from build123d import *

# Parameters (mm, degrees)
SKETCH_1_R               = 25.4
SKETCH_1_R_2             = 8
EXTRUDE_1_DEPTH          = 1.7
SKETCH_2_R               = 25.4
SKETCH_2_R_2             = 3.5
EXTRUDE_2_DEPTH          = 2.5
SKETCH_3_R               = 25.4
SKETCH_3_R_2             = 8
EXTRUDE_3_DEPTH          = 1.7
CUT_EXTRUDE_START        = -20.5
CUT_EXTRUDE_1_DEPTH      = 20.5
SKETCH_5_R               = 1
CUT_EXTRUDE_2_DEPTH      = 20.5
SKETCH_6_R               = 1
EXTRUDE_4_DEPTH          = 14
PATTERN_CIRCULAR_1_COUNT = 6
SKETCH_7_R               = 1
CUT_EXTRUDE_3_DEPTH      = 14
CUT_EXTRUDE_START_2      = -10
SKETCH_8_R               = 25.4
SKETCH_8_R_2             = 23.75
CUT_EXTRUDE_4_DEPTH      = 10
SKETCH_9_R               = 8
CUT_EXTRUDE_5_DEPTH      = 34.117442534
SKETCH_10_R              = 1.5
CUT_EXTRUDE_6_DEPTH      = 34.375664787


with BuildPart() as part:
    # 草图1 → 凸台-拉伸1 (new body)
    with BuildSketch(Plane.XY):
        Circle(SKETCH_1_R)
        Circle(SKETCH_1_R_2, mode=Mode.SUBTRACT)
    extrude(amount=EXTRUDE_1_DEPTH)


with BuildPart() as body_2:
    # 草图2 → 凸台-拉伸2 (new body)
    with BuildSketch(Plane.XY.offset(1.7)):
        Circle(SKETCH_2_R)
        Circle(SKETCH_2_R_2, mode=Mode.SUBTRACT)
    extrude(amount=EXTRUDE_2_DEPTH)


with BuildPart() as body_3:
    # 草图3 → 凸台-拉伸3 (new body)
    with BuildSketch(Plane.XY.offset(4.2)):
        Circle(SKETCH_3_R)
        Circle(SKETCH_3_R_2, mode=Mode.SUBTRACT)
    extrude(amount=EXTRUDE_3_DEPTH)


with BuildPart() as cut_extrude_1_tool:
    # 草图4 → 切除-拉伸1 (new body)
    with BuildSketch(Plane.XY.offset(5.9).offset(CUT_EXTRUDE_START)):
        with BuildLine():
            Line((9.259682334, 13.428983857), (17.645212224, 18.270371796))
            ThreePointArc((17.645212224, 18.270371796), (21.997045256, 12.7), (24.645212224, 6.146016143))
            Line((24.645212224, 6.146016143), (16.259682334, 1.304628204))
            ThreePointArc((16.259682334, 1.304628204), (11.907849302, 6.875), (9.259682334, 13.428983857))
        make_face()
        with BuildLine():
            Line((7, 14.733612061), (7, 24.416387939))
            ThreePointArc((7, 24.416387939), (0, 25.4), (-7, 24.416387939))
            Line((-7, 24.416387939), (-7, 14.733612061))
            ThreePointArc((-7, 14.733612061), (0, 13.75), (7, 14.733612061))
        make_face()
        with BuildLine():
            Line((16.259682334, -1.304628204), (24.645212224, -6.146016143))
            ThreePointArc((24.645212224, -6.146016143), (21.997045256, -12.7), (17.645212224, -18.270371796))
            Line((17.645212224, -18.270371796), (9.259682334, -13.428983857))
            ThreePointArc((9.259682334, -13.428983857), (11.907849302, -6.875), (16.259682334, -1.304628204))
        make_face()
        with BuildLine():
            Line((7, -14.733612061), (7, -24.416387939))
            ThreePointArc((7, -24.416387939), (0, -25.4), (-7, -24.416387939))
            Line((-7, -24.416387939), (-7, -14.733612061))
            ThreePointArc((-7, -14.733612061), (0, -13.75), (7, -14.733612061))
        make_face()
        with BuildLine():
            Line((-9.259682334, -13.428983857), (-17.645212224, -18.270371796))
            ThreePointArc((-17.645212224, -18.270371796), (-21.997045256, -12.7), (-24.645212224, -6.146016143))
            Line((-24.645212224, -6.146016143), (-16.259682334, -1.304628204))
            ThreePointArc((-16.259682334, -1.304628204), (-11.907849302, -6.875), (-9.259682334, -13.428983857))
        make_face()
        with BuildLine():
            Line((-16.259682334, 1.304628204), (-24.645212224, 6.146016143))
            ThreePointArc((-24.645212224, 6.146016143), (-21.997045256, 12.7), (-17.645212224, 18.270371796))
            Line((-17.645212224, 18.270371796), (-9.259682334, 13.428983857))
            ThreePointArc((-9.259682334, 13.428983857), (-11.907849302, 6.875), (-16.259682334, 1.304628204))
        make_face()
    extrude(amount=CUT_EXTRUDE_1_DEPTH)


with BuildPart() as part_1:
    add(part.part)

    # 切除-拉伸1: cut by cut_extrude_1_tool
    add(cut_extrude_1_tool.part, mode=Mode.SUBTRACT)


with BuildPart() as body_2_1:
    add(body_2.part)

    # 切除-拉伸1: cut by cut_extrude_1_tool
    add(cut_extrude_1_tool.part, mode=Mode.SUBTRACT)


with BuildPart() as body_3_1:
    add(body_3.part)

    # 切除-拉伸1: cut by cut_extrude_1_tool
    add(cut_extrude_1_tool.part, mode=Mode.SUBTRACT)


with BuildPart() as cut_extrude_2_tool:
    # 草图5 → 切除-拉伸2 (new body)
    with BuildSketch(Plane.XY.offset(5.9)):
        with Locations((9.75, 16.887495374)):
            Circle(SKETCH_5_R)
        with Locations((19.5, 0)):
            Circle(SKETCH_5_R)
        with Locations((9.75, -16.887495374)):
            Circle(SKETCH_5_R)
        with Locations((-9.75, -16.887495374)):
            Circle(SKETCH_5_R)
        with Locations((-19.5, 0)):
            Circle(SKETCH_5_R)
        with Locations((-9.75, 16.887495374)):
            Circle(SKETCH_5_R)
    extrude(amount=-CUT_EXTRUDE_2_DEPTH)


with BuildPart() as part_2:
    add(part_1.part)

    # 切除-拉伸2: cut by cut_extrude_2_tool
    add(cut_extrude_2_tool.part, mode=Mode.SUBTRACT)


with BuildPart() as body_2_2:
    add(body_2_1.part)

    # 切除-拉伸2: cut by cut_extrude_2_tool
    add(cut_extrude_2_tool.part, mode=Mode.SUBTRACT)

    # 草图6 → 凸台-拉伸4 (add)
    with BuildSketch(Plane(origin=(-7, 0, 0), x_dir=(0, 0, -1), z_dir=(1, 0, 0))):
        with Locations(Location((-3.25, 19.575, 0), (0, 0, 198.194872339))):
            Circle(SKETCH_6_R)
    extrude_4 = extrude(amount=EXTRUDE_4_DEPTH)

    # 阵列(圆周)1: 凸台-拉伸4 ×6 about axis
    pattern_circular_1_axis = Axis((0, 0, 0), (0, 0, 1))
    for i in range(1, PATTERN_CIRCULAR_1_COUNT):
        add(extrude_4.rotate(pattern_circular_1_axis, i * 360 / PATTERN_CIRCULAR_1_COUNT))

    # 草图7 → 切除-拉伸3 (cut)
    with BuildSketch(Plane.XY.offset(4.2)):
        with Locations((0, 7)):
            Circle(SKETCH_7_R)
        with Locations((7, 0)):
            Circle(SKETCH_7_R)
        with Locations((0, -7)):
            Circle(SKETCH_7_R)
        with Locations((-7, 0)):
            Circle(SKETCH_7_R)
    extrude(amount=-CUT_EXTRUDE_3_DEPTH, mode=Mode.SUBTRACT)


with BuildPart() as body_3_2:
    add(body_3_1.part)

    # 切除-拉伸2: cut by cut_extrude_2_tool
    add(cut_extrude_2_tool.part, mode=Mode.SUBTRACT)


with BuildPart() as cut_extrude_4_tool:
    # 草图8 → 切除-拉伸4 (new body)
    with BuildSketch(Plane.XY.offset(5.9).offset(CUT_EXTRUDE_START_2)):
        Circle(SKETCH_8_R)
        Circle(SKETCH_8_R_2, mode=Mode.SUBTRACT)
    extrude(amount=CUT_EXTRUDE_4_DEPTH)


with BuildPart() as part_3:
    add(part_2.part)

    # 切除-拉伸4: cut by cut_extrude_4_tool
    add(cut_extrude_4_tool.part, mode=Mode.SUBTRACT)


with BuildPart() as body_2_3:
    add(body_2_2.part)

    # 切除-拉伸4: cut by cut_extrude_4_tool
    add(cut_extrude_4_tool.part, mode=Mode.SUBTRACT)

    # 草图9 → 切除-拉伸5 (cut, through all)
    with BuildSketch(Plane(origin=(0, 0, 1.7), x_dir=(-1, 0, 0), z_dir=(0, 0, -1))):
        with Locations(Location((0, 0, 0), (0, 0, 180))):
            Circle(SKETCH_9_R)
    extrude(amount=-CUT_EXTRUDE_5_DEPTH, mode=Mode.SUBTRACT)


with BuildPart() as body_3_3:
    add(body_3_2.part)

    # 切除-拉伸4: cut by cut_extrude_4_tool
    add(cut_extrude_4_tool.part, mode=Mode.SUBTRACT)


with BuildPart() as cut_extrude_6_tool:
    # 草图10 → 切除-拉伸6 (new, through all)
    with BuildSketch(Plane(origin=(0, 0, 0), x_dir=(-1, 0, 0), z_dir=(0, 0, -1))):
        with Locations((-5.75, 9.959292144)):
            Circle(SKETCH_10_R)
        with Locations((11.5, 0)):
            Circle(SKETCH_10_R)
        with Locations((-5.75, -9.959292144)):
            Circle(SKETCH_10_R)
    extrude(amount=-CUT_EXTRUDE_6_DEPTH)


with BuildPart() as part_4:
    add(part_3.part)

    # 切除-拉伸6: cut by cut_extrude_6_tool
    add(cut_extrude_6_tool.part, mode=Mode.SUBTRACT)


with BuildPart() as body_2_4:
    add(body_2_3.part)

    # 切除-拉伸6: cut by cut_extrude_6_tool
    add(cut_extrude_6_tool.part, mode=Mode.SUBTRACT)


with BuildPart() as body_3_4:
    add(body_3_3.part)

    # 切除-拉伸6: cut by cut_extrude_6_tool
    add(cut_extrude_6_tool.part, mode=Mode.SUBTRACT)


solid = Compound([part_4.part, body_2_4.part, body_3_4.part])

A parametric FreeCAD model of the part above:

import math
import FreeCAD as App
import Part
import Sketcher

V = App.Vector
Q = App.Units.Quantity

doc = App.newDocument("Part")
body = doc.addObject("PartDesign::Body", "Body")

sketch1 = body.newObject("Sketcher::SketchObject", "Sketch")
sketch1.AttachmentSupport = (doc.getObject("XY_Plane"), [""])
sketch1.MapMode = "FlatFace"
sketch1.addGeometry([
    Part.Circle(V(0, 0, 0), V(0, 0, 1), 25),
    Part.Circle(V(0, 0, 0), V(0, 0, 1), 8),
], False)
sketch1.addConstraint([
    Sketcher.Constraint("Coincident", 0, 3, -1, 1),
    Sketcher.Constraint("Coincident", 1, 3, -1, 1),
    Sketcher.Constraint("Diameter", 1, 16.0),
    Sketcher.Constraint("Diameter", 0, 50.8),
])
pad1 = body.newObject("PartDesign::Pad", "Pad")
pad1.Profile = sketch1
pad1.Length = 1.7
body2 = doc.addObject("PartDesign::Body", "Body001")

sketch2 = body2.newObject("Sketcher::SketchObject", "Sketch001")
sketch2.AttachmentSupport = (doc.getObject("XY_Plane001"), [""])
sketch2.MapMode = "FlatFace"
sketch2.AttachmentOffset = App.Placement(V(0, 0, 1.7), App.Rotation())
sketch2.addGeometry([
    Part.Circle(V(0, 0, 0), V(0, 0, 1), 25.4),
    Part.Circle(V(0, 0, 0), V(0, 0, 1), 3.5),
], False)
sketch2.addConstraint([
    Sketcher.Constraint("Coincident", 0, 3, -1, 1),
    Sketcher.Constraint("Coincident", 1, 3, -1, 1),
    Sketcher.Constraint("Diameter", 1, 7.0),
    Sketcher.Constraint("Diameter", 0, 50.8),
])
pad2 = body2.newObject("PartDesign::Pad", "Pad001")
pad2.Profile = sketch2
pad2.Length = 2.5
body3 = doc.addObject("PartDesign::Body", "Body002")

sketch3 = body3.newObject("Sketcher::SketchObject", "Sketch002")
sketch3.AttachmentSupport = (doc.getObject("XY_Plane002"), [""])
sketch3.MapMode = "FlatFace"
sketch3.AttachmentOffset = App.Placement(V(0, 0, 4.2), App.Rotation())
sketch3.addGeometry([
    Part.Circle(V(0, 0, 0), V(0, 0, 1), 25),
    Part.Circle(V(0, 0, 0), V(0, 0, 1), 8),
], False)
sketch3.addConstraint([
    Sketcher.Constraint("Coincident", 0, 3, -1, 1),
    Sketcher.Constraint("Coincident", 1, 3, -1, 1),
    Sketcher.Constraint("Diameter", 1, 16.0),
    Sketcher.Constraint("Diameter", 0, 50.8),
])
pad3 = body3.newObject("PartDesign::Pad", "Pad002")
pad3.Profile = sketch3
pad3.Length = 1.7
body4 = doc.addObject("PartDesign::Body", "Body003")
body4.AllowCompound = True

sketch4 = body4.newObject("Sketcher::SketchObject", "Sketch003")
sketch4.AttachmentSupport = (doc.getObject("XY_Plane003"), [""])
sketch4.MapMode = "FlatFace"
sketch4.AttachmentOffset = App.Placement(V(0, 0, -14.6), App.Rotation())
sketch4.addGeometry([
    Part.LineSegment(V(18, 18, 0), V(9, 13, 0)),
    Part.ArcOfCircle(Part.Circle(V(34, 20, 0), V(0, 0, 1), 25), math.radians(-166), math.radians(-134)),
    Part.LineSegment(V(16, 1, 0), V(25, 6, 0)),
    Part.ArcOfCircle(Part.Circle(V(0, 0, 0), V(0, 0, 1), 25), math.radians(14), math.radians(46)),
    Part.LineSegment(V(7, 15, 0), V(7, 24, 0)),
    Part.ArcOfCircle(Part.Circle(V(0, 0, 0), V(0, 0, 1), 25), math.radians(74), math.radians(106)),
    Part.LineSegment(V(-7, 24, 0), V(-7, 15, 0)),
    Part.ArcOfCircle(Part.Circle(V(0, 39, 0), V(0, 0, 1), 25), math.radians(-106), math.radians(-74)),
    Part.LineSegment(V(25, -6, 0), V(16, -1, 0)),
    Part.ArcOfCircle(Part.Circle(V(34, -20, 0), V(0, 0, 1), 25), math.radians(134), math.radians(166)),
    Part.LineSegment(V(9, -13, 0), V(18, -18, 0)),
    Part.ArcOfCircle(Part.Circle(V(0, 0, 0), V(0, 0, 1), 25), math.radians(-46), math.radians(-14)),
    Part.LineSegment(V(7, -24, 0), V(7, -15, 0)),
    Part.ArcOfCircle(Part.Circle(V(0, -39, 0), V(0, 0, 1), 25), math.radians(74), math.radians(106)),
    Part.LineSegment(V(-7, -15, 0), V(-7, -24, 0)),
    Part.ArcOfCircle(Part.Circle(V(0, 0, 0), V(0, 0, 1), 25), math.radians(-106), math.radians(-74)),
    Part.LineSegment(V(-18, -18, 0), V(-9, -13, 0)),
    Part.ArcOfCircle(Part.Circle(V(-34, -20, 0), V(0, 0, 1), 25), math.radians(14), math.radians(46)),
    Part.LineSegment(V(-16, -1, 0), V(-25, -6, 0)),
    Part.ArcOfCircle(Part.Circle(V(0, 0, 0), V(0, 0, 1), 25), math.radians(-166), math.radians(-134)),
    Part.LineSegment(V(-25, 6, 0), V(-16, 1, 0)),
    Part.ArcOfCircle(Part.Circle(V(-34, 20, 0), V(0, 0, 1), 25), math.radians(-46), math.radians(-14)),
    Part.LineSegment(V(-9, 13, 0), V(-18, 18, 0)),
    Part.ArcOfCircle(Part.Circle(V(0, 0, 0), V(0, 0, 1), 25), math.radians(134), math.radians(166)),
], False)
sketch4.addConstraint([
    Sketcher.Constraint("Coincident", 0, 2, 1, 1),
    Sketcher.Constraint("Coincident", 1, 2, 2, 1),
    Sketcher.Constraint("Coincident", 2, 2, 3, 1),
    Sketcher.Constraint("Coincident", 3, 2, 0, 1),
    Sketcher.Constraint("Coincident", 4, 2, 5, 1),
    Sketcher.Constraint("Coincident", 5, 2, 6, 1),
    Sketcher.Constraint("Coincident", 6, 2, 7, 1),
    Sketcher.Constraint("Coincident", 7, 2, 4, 1),
    Sketcher.Constraint("Coincident", 8, 2, 9, 1),
    Sketcher.Constraint("Coincident", 9, 2, 10, 1),
    Sketcher.Constraint("Coincident", 10, 2, 11, 1),
    Sketcher.Constraint("Coincident", 11, 2, 8, 1),
    Sketcher.Constraint("Coincident", 12, 2, 13, 1),
    Sketcher.Constraint("Coincident", 13, 2, 14, 1),
    Sketcher.Constraint("Coincident", 14, 2, 15, 1),
    Sketcher.Constraint("Coincident", 15, 2, 12, 1),
    Sketcher.Constraint("Coincident", 16, 2, 17, 1),
    Sketcher.Constraint("Coincident", 17, 2, 18, 1),
    Sketcher.Constraint("Coincident", 18, 2, 19, 1),
    Sketcher.Constraint("Coincident", 19, 2, 16, 1),
    Sketcher.Constraint("Coincident", 20, 2, 21, 1),
    Sketcher.Constraint("Coincident", 21, 2, 22, 1),
    Sketcher.Constraint("Coincident", 22, 2, 23, 1),
    Sketcher.Constraint("Coincident", 23, 2, 20, 1),
    Sketcher.Constraint("Vertical", 4),
    Sketcher.Constraint("Vertical", 6),
    Sketcher.Constraint("Vertical", 12),
    Sketcher.Constraint("Vertical", 14),
    Sketcher.Constraint("Coincident", 3, 3, -1, 1),
    Sketcher.Constraint("Coincident", 5, 3, -1, 1),
    Sketcher.Constraint("Coincident", 11, 3, -1, 1),
    Sketcher.Constraint("Coincident", 15, 3, -1, 1),
    Sketcher.Constraint("Coincident", 19, 3, -1, 1),
    Sketcher.Constraint("Coincident", 23, 3, -1, 1),
    Sketcher.Constraint("Equal", 1, 3),
    Sketcher.Constraint("Equal", 3, 5),
    Sketcher.Constraint("Equal", 5, 7),
    Sketcher.Constraint("Equal", 7, 9),
    Sketcher.Constraint("Equal", 9, 11),
    Sketcher.Constraint("Equal", 11, 13),
    Sketcher.Constraint("Equal", 13, 15),
    Sketcher.Constraint("Equal", 15, 17),
    Sketcher.Constraint("Equal", 17, 19),
    Sketcher.Constraint("Equal", 19, 21),
    Sketcher.Constraint("Equal", 21, 23),
    Sketcher.Constraint("Symmetric", 7, 3, 13, 3, -1, 1),
    Sketcher.Constraint("Symmetric", 1, 3, 17, 3, -1, 1),
    Sketcher.Constraint("Symmetric", 9, 3, 21, 3, -1, 1),
    Sketcher.Constraint("Symmetric", 9, 3, 17, 3, -2),
    Sketcher.Constraint("Symmetric", 6, 2, 7, 2, -2),
    Sketcher.Constraint("Parallel", 0, 2),
    Sketcher.Constraint("Parallel", 8, 10),
    Sketcher.Constraint("Parallel", 2, 16),
    Sketcher.Constraint("Parallel", 16, 18),
    Sketcher.Constraint("Parallel", 10, 20),
    Sketcher.Constraint("Parallel", 20, 22),
    Sketcher.Constraint("Horizontal", 12, 2, 13, 2),
    Sketcher.Constraint("Horizontal", 9, 2, 16, 2),
    Sketcher.Constraint("Horizontal", 8, 2, 17, 2),
    Sketcher.Constraint("Horizontal", 11, 2, 18, 2),
    Sketcher.Constraint("Horizontal", 1, 2, 20, 2),
    Sketcher.Constraint("Horizontal", 0, 2, 21, 2),
    Sketcher.Constraint("Vertical", 1, 2, 8, 2),
    Sketcher.Constraint("Vertical", 0, 2, 9, 2),
    Sketcher.Constraint("Vertical", 7, 2, 12, 2),
    Sketcher.Constraint("Equal", 0, 2),
    Sketcher.Constraint("Radius", 1, 25.4),
    Sketcher.Constraint("Angle", 0, Q("-150 deg")),
    Sketcher.Constraint("DistanceX", -1, 1, 4, 2, 7.0),
    Sketcher.Constraint("DistanceX", 0, 2, 1, 2, 7.0),
    Sketcher.Constraint("DistanceY", -1, 1, 7, 3, 39.15),
    Sketcher.Constraint("DistanceY", 9, 3, 1, 3, 39.15),
    Sketcher.Constraint("DistanceY", 8, 2, -1, 1, 1.304628),
])
pad4 = body4.newObject("PartDesign::Pad", "Pad003")
pad4.Profile = sketch4
pad4.Length = 20.5
doc.recompute()

body5 = doc.addObject("PartDesign::Body", "Body004")
body5.BaseFeature = body4
boolean = body.newObject("PartDesign::Boolean", "Boolean")
boolean.Type = "Cut"
boolean.addObjects([body5])
doc.recompute()

body6 = doc.addObject("PartDesign::Body", "Body005")
body6.BaseFeature = body4
boolean2 = body2.newObject("PartDesign::Boolean", "Boolean001")
boolean2.Type = "Cut"
boolean2.addObjects([body6])
doc.recompute()

boolean3 = body3.newObject("PartDesign::Boolean", "Boolean002")
boolean3.Type = "Cut"
boolean3.addObjects([body4])
body7 = doc.addObject("PartDesign::Body", "Body006")
body7.AllowCompound = True

sketch5 = body7.newObject("Sketcher::SketchObject", "Sketch004")
sketch5.AttachmentSupport = (doc.getObject("XY_Plane006"), [""])
sketch5.MapMode = "FlatFace"
sketch5.AttachmentOffset = App.Placement(V(0, 0, 5.9), App.Rotation())
sketch5.addGeometry([
    Part.Circle(V(9.8, 16.9, 0), V(0, 0, 1), 1),
    Part.Circle(V(19.5, 0, 0), V(0, 0, 1), 1),
    Part.Circle(V(9.8, -16.9, 0), V(0, 0, 1), 1),
    Part.Circle(V(-9.8, -16.9, 0), V(0, 0, 1), 1),
    Part.Circle(V(-19.5, 0, 0), V(0, 0, 1), 1),
    Part.Circle(V(-9.8, 16.9, 0), V(0, 0, 1), 1),
], False)
sketch5.addConstraint([
    Sketcher.Constraint("Equal", 0, 1),
    Sketcher.Constraint("Equal", 1, 2),
    Sketcher.Constraint("Equal", 2, 3),
    Sketcher.Constraint("Equal", 3, 4),
    Sketcher.Constraint("Equal", 4, 5),
    Sketcher.Constraint("Symmetric", 0, 3, 3, 3, -1, 1),
    Sketcher.Constraint("Symmetric", 1, 3, 4, 3, -1, 1),
    Sketcher.Constraint("Symmetric", 2, 3, 5, 3, -1, 1),
    Sketcher.Constraint("Symmetric", 2, 3, 3, 3, -2),
    Sketcher.Constraint("PointOnObject", 1, 3, -1),
    Sketcher.Constraint("Diameter", 0, 2.0),
    Sketcher.Constraint("DistanceX", 4, 3, 1, 3, 39.0),
    Sketcher.Constraint("DistanceX", 3, 3, 2, 3, 19.5),
    Sketcher.Constraint("DistanceY", 2, 3, 0, 3, 33.774991),
])
pad5 = body7.newObject("PartDesign::Pad", "Pad004")
pad5.Profile = sketch5
pad5.Length = 20.5
pad5.Reversed = True
doc.recompute()

body8 = doc.addObject("PartDesign::Body", "Body007")
body8.BaseFeature = body7
boolean4 = body.newObject("PartDesign::Boolean", "Boolean003")
boolean4.Type = "Cut"
boolean4.addObjects([body8])
doc.recompute()

body9 = doc.addObject("PartDesign::Body", "Body008")
body9.BaseFeature = body7
boolean5 = body2.newObject("PartDesign::Boolean", "Boolean004")
boolean5.Type = "Cut"
boolean5.addObjects([body9])
doc.recompute()

sketch6 = body2.newObject("Sketcher::SketchObject", "Sketch005")
sketch6.AttachmentSupport = (doc.getObject("YZ_Plane001"), [""])
sketch6.MapMode = "FlatFace"
sketch6.AttachmentOffset = App.Placement(V(0, 0, -7), App.Rotation())
sketch6.addGeometry(Part.Circle(V(19.6, 3.2, 0), V(0, 0, 1), 1), False)
sketch6.addConstraint([
    Sketcher.Constraint("Diameter", 0, 2.0),
    Sketcher.Constraint("DistanceY", -1, 1, 0, 3, 3.25),
    Sketcher.Constraint("DistanceX", -1, 1, 0, 3, 19.575),
])
pad6 = body2.newObject("PartDesign::Pad", "Pad005")
pad6.Profile = sketch6
pad6.Length = 14
doc.recompute()

polarpattern = body2.newObject("PartDesign::PolarPattern", "PolarPattern")
polarpattern.Originals = [pad6]
polarpattern.Axis = (doc.getObject("Z_Axis001"), [""])
polarpattern.Angle = 360
polarpattern.Occurrences = 6
body2.Tip = polarpattern

sketch7 = body2.newObject("Sketcher::SketchObject", "Sketch006")
sketch7.AttachmentSupport = (doc.getObject("XY_Plane001"), [""])
sketch7.MapMode = "FlatFace"
sketch7.AttachmentOffset = App.Placement(V(0, 0, 4.2), App.Rotation())
sketch7.addGeometry([
    Part.Circle(V(0, 7, 0), V(0, 0, 1), 1),
    Part.Circle(V(7, 0, 0), V(0, 0, 1), 1),
    Part.Circle(V(0, -7, 0), V(0, 0, 1), 1),
    Part.Circle(V(-7, 0, 0), V(0, 0, 1), 1),
], False)
sketch7.addConstraint([
    Sketcher.Constraint("Equal", 0, 1),
    Sketcher.Constraint("Equal", 1, 2),
    Sketcher.Constraint("Equal", 2, 3),
    Sketcher.Constraint("Symmetric", 0, 3, 2, 3, -1, 1),
    Sketcher.Constraint("Symmetric", 1, 3, 3, 3, -1, 1),
    Sketcher.Constraint("PointOnObject", 0, 3, -2),
    Sketcher.Constraint("PointOnObject", 1, 3, -1),
    Sketcher.Constraint("Diameter", 0, 2.0),
    Sketcher.Constraint("DistanceY", -1, 1, 0, 3, 7.0),
    Sketcher.Constraint("DistanceX", -1, 1, 1, 3, 7.0),
])
pocket1 = body2.newObject("PartDesign::Pocket", "Pocket")
pocket1.Profile = sketch7
pocket1.Length = 14
doc.recompute()

boolean6 = body3.newObject("PartDesign::Boolean", "Boolean005")
boolean6.Type = "Cut"
boolean6.addObjects([body7])
body10 = doc.addObject("PartDesign::Body", "Body009")

sketch8 = body10.newObject("Sketcher::SketchObject", "Sketch007")
sketch8.AttachmentSupport = (doc.getObject("XY_Plane009"), [""])
sketch8.MapMode = "FlatFace"
sketch8.AttachmentOffset = App.Placement(V(0, 0, -4.1), App.Rotation())
sketch8.addGeometry([
    Part.Circle(V(0, 0, 0), V(0, 0, 1), 25),
    Part.Circle(V(0, 0, 0), V(0, 0, 1), 24),
], False)
sketch8.addConstraint([
    Sketcher.Constraint("Coincident", 0, 3, -1, 1),
    Sketcher.Constraint("Coincident", 1, 3, -1, 1),
    Sketcher.Constraint("Diameter", 0, 50.8),
    Sketcher.Constraint("Diameter", 1, 47.5),
])
pad7 = body10.newObject("PartDesign::Pad", "Pad006")
pad7.Profile = sketch8
pad7.Length = 10
doc.recompute()

body11 = doc.addObject("PartDesign::Body", "Body010")
body11.BaseFeature = body10
boolean7 = body.newObject("PartDesign::Boolean", "Boolean006")
boolean7.Type = "Cut"
boolean7.addObjects([body11])
doc.recompute()

body12 = doc.addObject("PartDesign::Body", "Body011")
body12.BaseFeature = body10
boolean8 = body2.newObject("PartDesign::Boolean", "Boolean007")
boolean8.Type = "Cut"
boolean8.addObjects([body12])
doc.recompute()

sketch9 = body2.newObject("Sketcher::SketchObject", "Sketch008")
sketch9.AttachmentSupport = (doc.getObject("XY_Plane001"), [""])
sketch9.MapMode = "FlatFace"
sketch9.AttachmentOffset = App.Placement(V(0, 0, 1.7), App.Rotation())
sketch9.addGeometry(Part.Circle(V(0, 0, 0), V(0, 0, 1), 8), False)
sketch9.addConstraint([
    Sketcher.Constraint("Coincident", 0, 3, -1, 1),
    Sketcher.Constraint("Diameter", 0, 16.0),
])
pocket2 = body2.newObject("PartDesign::Pocket", "Pocket001")
pocket2.Profile = sketch9
pocket2.Type = "ThroughAll"
pocket2.Reversed = True
doc.recompute()

boolean9 = body3.newObject("PartDesign::Boolean", "Boolean008")
boolean9.Type = "Cut"
boolean9.addObjects([body10])
body13 = doc.addObject("PartDesign::Body", "Body012")
body13.AllowCompound = True

sketch10 = body13.newObject("Sketcher::SketchObject", "Sketch009")
sketch10.AttachmentSupport = (doc.getObject("XY_Plane012"), [""])
sketch10.MapMode = "FlatFace"
sketch10.addGeometry([
    Part.Circle(V(5.8, 10, 0), V(0, 0, 1), 1.5),
    Part.Circle(V(-11.5, 0, 0), V(0, 0, 1), 1.5),
    Part.Circle(V(5.8, -10, 0), V(0, 0, 1), 1.5),
], False)
sketch10.addConstraint([
    Sketcher.Constraint("Equal", 0, 1),
    Sketcher.Constraint("Equal", 1, 2),
    Sketcher.Constraint("Symmetric", 0, 3, 2, 3, -1),
    Sketcher.Constraint("PointOnObject", 1, 3, -1),
    Sketcher.Constraint("Diameter", 0, 3.0),
    Sketcher.Constraint("DistanceX", 1, 3, -1, 1, 11.5),
    Sketcher.Constraint("DistanceX", -1, 1, 0, 3, 5.75),
    Sketcher.Constraint("DistanceY", -1, 1, 0, 3, 9.959292),
])
pad8 = body13.newObject("PartDesign::Pad", "Pad007")
pad8.Profile = sketch10
pad8.Length = 34.375665
doc.recompute()

body14 = doc.addObject("PartDesign::Body", "Body013")
body14.BaseFeature = body13
boolean10 = body.newObject("PartDesign::Boolean", "Boolean009")
boolean10.Type = "Cut"
boolean10.addObjects([body14])
doc.recompute()

body15 = doc.addObject("PartDesign::Body", "Body014")
body15.BaseFeature = body13
boolean11 = body2.newObject("PartDesign::Boolean", "Boolean010")
boolean11.Type = "Cut"
boolean11.addObjects([body15])
doc.recompute()

boolean12 = body3.newObject("PartDesign::Boolean", "Boolean011")
boolean12.Type = "Cut"
boolean12.addObjects([body13])

doc.recompute()
